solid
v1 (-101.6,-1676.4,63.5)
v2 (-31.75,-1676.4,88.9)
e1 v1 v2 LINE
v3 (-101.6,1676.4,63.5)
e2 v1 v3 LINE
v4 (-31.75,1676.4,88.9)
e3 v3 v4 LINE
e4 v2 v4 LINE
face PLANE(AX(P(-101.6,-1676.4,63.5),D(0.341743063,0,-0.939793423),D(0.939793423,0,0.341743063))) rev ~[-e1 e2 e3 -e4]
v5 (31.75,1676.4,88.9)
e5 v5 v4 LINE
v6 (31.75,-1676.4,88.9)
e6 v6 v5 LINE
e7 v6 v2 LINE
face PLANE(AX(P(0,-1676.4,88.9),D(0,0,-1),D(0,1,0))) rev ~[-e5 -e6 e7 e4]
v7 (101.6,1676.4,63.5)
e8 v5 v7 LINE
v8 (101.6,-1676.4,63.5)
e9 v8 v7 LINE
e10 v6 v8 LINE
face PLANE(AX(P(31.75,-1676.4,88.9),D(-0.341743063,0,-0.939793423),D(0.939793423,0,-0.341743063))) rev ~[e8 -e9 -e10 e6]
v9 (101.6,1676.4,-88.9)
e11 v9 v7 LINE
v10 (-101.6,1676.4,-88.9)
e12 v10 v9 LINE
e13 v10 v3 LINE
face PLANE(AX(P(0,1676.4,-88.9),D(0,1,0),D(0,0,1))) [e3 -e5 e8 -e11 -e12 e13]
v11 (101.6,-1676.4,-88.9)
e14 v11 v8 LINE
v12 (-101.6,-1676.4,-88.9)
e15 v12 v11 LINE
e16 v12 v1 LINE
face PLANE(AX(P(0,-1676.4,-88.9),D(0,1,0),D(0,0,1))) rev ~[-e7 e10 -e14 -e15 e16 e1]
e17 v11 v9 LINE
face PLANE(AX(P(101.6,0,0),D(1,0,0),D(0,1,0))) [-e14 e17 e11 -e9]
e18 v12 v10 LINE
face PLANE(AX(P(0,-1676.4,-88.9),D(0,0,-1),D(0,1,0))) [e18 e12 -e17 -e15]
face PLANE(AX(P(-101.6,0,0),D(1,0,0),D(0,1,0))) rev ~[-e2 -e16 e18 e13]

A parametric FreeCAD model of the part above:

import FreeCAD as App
import Part
import Sketcher
from FreeCAD import Vector
Q = App.Units.Quantity


def add_polygon(sketch, points):
    """Adds a closed chain of lines whose ends are joined by coincident constraints."""
    first, n = sketch.GeometryCount, len(points)
    for a, b in zip(points, points[1:] + points[:1]):
        sketch.addGeometry(Part.LineSegment(App.Vector(*a, 0), App.Vector(*b, 0)), False)
    for i in range(n):
        sketch.addConstraint(Sketcher.Constraint("Coincident", first + i, 2, first + (i + 1) % n, 1))

doc = App.newDocument("Part")
body = doc.addObject("PartDesign::Body", "Body")

# Sketch on YZ plane
sketch1 = body.newObject("Sketcher::SketchObject", "Sketch")
sketch1.AttachmentSupport = (doc.getObject("YZ_Plane"), [""])
sketch1.MapMode = "FlatFace"
add_polygon(sketch1, [(-1676.4, 88.9), (-1676.4, -88.9), (1676.4, -88.9), (1676.4, 88.9)])  # lines 0-3
sketch1.addConstraint([
    Sketcher.Constraint("Vertical", 0),
    Sketcher.Constraint("Horizontal", 1),
    Sketcher.Constraint("Vertical", 2),
    Sketcher.Constraint("Horizontal", 3),
    Sketcher.Constraint("Symmetric", 0, 2, 2, 2, -1, 1),
    Sketcher.Constraint("DistanceX", 1, 1, 1, 2, Q("132 in")),
    Sketcher.Constraint("DistanceY", 0, 2, 0, 1, Q("7 in")),
])
pad1 = body.newObject("PartDesign::Pad", "Pad")
pad1.Profile = sketch1
pad1.Length = Q("8 in")
pad1.Midplane = True

# Sketch on XZ plane
sketch2 = body.newObject("Sketcher::SketchObject", "Sketch001")
sketch2.AttachmentSupport = (doc.getObject("XZ_Plane"), [""])
sketch2.MapMode = "FlatFace"
sketch2.AttachmentOffset = App.Placement(Vector(0, 0, 66 * 25.4), App.Rotation())
add_polygon(sketch2, [(-101.6, 88.9), (-101.6, 63.5), (-31.75, 88.9)])  # lines 0-2
add_polygon(sketch2, [(101.6, 88.9), (31.75, 88.9), (101.6, 63.5)])  # lines 3-5
sketch2.addConstraint([
    Sketcher.Constraint("Vertical", 0),
    Sketcher.Constraint("Horizontal", 2),
    Sketcher.Constraint("Horizontal", 3),
    Sketcher.Constraint("Vertical", 5),
    Sketcher.Constraint("Symmetric", 1, 2, 3, 2, -2),
    Sketcher.Constraint("Symmetric", 0, 2, 4, 2, -2),
    Sketcher.Constraint("DistanceY", 0, 2, 0, 1, Q("1 in")),
    Sketcher.Constraint("DistanceX", 0, 2, -1, 1, Q("4 in")),
    Sketcher.Constraint("DistanceX", 2, 2, 2, 1, Q("2.75 in")),
    Sketcher.Constraint("DistanceY", -1, 1, 0, 2, Q("2.5 in")),
])
pocket1 = body.newObject("PartDesign::Pocket", "Pocket")
pocket1.Profile = sketch2
pocket1.Length = Q("132 in")

doc.recompute()
